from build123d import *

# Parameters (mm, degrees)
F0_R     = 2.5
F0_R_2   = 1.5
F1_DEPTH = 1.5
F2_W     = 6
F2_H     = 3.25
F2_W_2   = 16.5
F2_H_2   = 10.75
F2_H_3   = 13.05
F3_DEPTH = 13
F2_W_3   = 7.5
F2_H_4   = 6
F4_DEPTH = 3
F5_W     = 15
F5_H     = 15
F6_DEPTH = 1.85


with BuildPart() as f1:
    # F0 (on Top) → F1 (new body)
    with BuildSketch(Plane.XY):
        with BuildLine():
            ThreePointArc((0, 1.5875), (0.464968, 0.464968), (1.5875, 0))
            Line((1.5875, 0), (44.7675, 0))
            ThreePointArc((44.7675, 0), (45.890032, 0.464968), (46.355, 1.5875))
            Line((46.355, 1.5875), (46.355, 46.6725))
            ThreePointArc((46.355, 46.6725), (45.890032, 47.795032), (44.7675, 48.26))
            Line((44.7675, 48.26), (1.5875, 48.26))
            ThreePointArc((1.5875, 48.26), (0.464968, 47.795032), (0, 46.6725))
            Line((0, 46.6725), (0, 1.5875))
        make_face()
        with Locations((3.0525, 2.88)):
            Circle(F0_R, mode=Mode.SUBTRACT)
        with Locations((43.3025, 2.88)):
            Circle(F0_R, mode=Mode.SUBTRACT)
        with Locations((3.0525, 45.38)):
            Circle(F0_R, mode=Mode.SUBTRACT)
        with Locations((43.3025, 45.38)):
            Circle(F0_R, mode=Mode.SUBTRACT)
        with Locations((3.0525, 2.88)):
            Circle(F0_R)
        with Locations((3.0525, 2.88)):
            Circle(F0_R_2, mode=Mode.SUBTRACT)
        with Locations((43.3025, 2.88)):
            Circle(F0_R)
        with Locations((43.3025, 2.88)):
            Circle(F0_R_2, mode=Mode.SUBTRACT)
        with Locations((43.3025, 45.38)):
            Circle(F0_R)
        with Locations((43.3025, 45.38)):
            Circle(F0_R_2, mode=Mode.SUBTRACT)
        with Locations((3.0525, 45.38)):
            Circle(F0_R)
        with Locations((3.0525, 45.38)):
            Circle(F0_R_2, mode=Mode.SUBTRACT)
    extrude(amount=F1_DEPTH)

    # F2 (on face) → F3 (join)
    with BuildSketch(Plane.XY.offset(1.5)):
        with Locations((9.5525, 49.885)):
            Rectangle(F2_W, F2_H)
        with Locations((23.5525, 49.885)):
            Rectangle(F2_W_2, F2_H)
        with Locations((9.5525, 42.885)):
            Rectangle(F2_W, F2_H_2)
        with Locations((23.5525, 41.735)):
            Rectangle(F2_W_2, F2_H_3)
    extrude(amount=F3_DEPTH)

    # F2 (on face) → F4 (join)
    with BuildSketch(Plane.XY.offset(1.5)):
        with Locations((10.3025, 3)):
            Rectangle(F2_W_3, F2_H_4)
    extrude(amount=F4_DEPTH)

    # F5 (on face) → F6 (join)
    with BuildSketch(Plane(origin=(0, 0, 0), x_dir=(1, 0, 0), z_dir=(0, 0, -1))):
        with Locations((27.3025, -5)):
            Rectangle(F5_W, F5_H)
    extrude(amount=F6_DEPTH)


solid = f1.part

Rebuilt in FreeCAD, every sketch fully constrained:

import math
import FreeCAD as App
import Part
import Sketcher


def add_polygon(sketch, points):
    """Adds a closed chain of lines whose ends are joined by coincident constraints."""
    first, n = sketch.GeometryCount, len(points)
    for a, b in zip(points, points[1:] + points[:1]):
        sketch.addGeometry(Part.LineSegment(App.Vector(*a, 0), App.Vector(*b, 0)), False)
    for i in range(n):
        sketch.addConstraint(Sketcher.Constraint("Coincident", first + i, 2, first + (i + 1) % n, 1))

doc = App.newDocument("Part")
params = doc.addObject("Spreadsheet::Sheet", "Params")
for row, (alias, value) in enumerate([
    ("sketch1_diameter", "3 mm"),
    ("sketch1_width", "43.18 mm"),
    ("pad1_length", "1.5 mm"),
    ("sketch2_width", "6 mm"),
    ("sketch2_height", "14 mm"),
    ("sketch2_width2", "16.5 mm"),
    ("sketch2_height2", "16.3 mm"),
    ("pad2_length", "13 mm"),
    ("sketch3_height", "6 mm"),
    ("sketch3_width", "7.5 mm"),
    ("pad3_length", "3 mm"),
    ("sketch4_width", "15 mm"),
    ("pad4_length", "1.85 mm"),
], start=1):
    params.set(f"A{row}", alias)
    params.set(f"B{row}", "=" + value)
    params.setAlias(f"B{row}", alias)

body = doc.addObject("PartDesign::Body", "Body")

sketch1 = body.newObject("Sketcher::SketchObject", "Sketch")
sketch1.AttachmentSupport = (doc.getObject("XY_Plane"), [""])
sketch1.MapMode = "FlatFace"
sketch1.addGeometry(Part.ArcOfCircle(Part.Circle(App.Vector(1.5875, 1.5875, 0), App.Vector(0, 0, 1), 1.5875), math.radians(-179.999998), math.radians(-90.000002)), False)
sketch1.addGeometry(Part.LineSegment(App.Vector(1.5875, 0, 0), App.Vector(44.7675, 0, 0)), False)
sketch1.addGeometry(Part.ArcOfCircle(Part.Circle(App.Vector(44.7675, 1.5875, 0), App.Vector(0, 0, 1), 1.5875), math.radians(-89.999998), math.radians(-0.000002)), False)
sketch1.addGeometry(Part.LineSegment(App.Vector(46.355, 1.5875, 0), App.Vector(46.355, 46.6725, 0)), False)
sketch1.addGeometry(Part.ArcOfCircle(Part.Circle(App.Vector(44.7675, 46.6725, 0), App.Vector(0, 0, 1), 1.5875), math.radians(0.000002), math.radians(89.999998)), False)
sketch1.addGeometry(Part.LineSegment(App.Vector(44.7675, 48.26, 0), App.Vector(1.5875, 48.26, 0)), False)
sketch1.addGeometry(Part.ArcOfCircle(Part.Circle(App.Vector(1.5875, 46.6725, 0), App.Vector(0, 0, 1), 1.5875), math.radians(90.000002), math.radians(179.999998)), False)
sketch1.addGeometry(Part.LineSegment(App.Vector(0, 46.6725, 0), App.Vector(0, 1.5875, 0)), False)
sketch1.addGeometry(Part.Circle(App.Vector(3.0525, 2.88, 0), App.Vector(0, 0, 1), 1.5), False)
sketch1.addGeometry(Part.Circle(App.Vector(43.3025, 2.88, 0), App.Vector(0, 0, 1), 1.5), False)
sketch1.addGeometry(Part.Circle(App.Vector(3.0525, 45.38, 0), App.Vector(0, 0, 1), 1.5), False)
sketch1.addGeometry(Part.Circle(App.Vector(43.3025, 45.38, 0), App.Vector(0, 0, 1), 1.5), False)
sketch1.addConstraint(Sketcher.Constraint("Tangent", 0, 2, 1, 1))
sketch1.addConstraint(Sketcher.Constraint("Tangent", 1, 2, 2, 1))
sketch1.addConstraint(Sketcher.Constraint("Tangent", 2, 2, 3, 1))
sketch1.addConstraint(Sketcher.Constraint("Tangent", 3, 2, 4, 1))
sketch1.addConstraint(Sketcher.Constraint("Tangent", 4, 2, 5, 1))
sketch1.addConstraint(Sketcher.Constraint("Tangent", 5, 2, 6, 1))
sketch1.addConstraint(Sketcher.Constraint("Tangent", 6, 2, 7, 1))
sketch1.addConstraint(Sketcher.Constraint("Tangent", 7, 2, 0, 1))
sketch1.addConstraint(Sketcher.Constraint("Horizontal", 1))
sketch1.addConstraint(Sketcher.Constraint("Vertical", 3))
sketch1.addConstraint(Sketcher.Constraint("Horizontal", 5))
sketch1.addConstraint(Sketcher.Constraint("Vertical", 7))
sketch1.addConstraint(Sketcher.Constraint("Equal", 0, 2))
sketch1.addConstraint(Sketcher.Constraint("Equal", 2, 4))
sketch1.addConstraint(Sketcher.Constraint("Equal", 4, 6))
sketch1.addConstraint(Sketcher.Constraint("Equal", 8, 9))
sketch1.addConstraint(Sketcher.Constraint("Equal", 9, 10))
sketch1.addConstraint(Sketcher.Constraint("Equal", 10, 11))
sketch1.addConstraint(Sketcher.Constraint("PointOnObject", 0, 2, -1))
sketch1.addConstraint(Sketcher.Constraint("PointOnObject", 6, 2, -2))
sketch1.addConstraint(Sketcher.Constraint("Horizontal", 8, 3, 9, 3))
sketch1.addConstraint(Sketcher.Constraint("Horizontal", 10, 3, 11, 3))
sketch1.addConstraint(Sketcher.Constraint("Vertical", 8, 3, 10, 3))
sketch1.addConstraint(Sketcher.Constraint("Vertical", 9, 3, 11, 3))
sketch1.addConstraint(Sketcher.Constraint("Diameter", 8, 3.0))
sketch1.addConstraint(Sketcher.Constraint("DistanceX", 1, 1, 1, 2, 43.18))
sketch1.addConstraint(Sketcher.Constraint("Radius", 0, 1.5875))
sketch1.addConstraint(Sketcher.Constraint("DistanceY", 8, 3, 10, 3, 42.5))
sketch1.addConstraint(Sketcher.Constraint("DistanceY", 3, 1, 3, 2, 45.085))
sketch1.addConstraint(Sketcher.Constraint("DistanceY", -1, 1, 8, 3, 2.88))
sketch1.addConstraint(Sketcher.Constraint("DistanceX", 8, 3, 9, 3, 40.25))
sketch1.addConstraint(Sketcher.Constraint("DistanceX", 0, 3, 8, 3, 1.465))
sketch1.setExpression("Constraints[24]", "Params.sketch1_diameter")
sketch1.setExpression("Constraints[25]", "Params.sketch1_width")
pad1 = body.newObject("PartDesign::Pad", "Pad")
pad1.Profile = sketch1
pad1.setExpression("Length", "Params.pad1_length")

sketch2 = body.newObject("Sketcher::SketchObject", "Sketch001")
sketch2.AttachmentSupport = (doc.getObject("XY_Plane"), [""])
sketch2.MapMode = "FlatFace"
sketch2.AttachmentOffset = App.Placement(App.Vector(0, 0, 1.5), App.Rotation())
add_polygon(sketch2, [(6.5525, 51.51), (6.5525, 37.51), (12.5525, 37.51), (12.5525, 51.51)])
add_polygon(sketch2, [(15.3025, 51.51), (15.3025, 35.21), (31.8025, 35.21), (31.8025, 51.51)])
sketch2.addConstraint(Sketcher.Constraint("Vertical", 0))
sketch2.addConstraint(Sketcher.Constraint("Horizontal", 1))
sketch2.addConstraint(Sketcher.Constraint("Vertical", 2))
sketch2.addConstraint(Sketcher.Constraint("Horizontal", 3))
sketch2.addConstraint(Sketcher.Constraint("Vertical", 4))
sketch2.addConstraint(Sketcher.Constraint("Horizontal", 5))
sketch2.addConstraint(Sketcher.Constraint("Vertical", 6))
sketch2.addConstraint(Sketcher.Constraint("Horizontal", 7))
sketch2.addConstraint(Sketcher.Constraint("Horizontal", 3, 2, 6, 2))
sketch2.addConstraint(Sketcher.Constraint("DistanceX", 1, 1, 1, 2, 6.0))
sketch2.addConstraint(Sketcher.Constraint("DistanceY", 0, 2, 0, 1, 14.0))
sketch2.addConstraint(Sketcher.Constraint("DistanceX", 5, 1, 5, 2, 16.5))
sketch2.addConstraint(Sketcher.Constraint("DistanceY", 4, 2, 4, 1, 16.3))
sketch2.addConstraint(Sketcher.Constraint("DistanceY", -1, 1, 0, 2, 37.51))
sketch2.addConstraint(Sketcher.Constraint("DistanceX", 1, 2, 4, 2, 2.75))
sketch2.addConstraint(Sketcher.Constraint("DistanceX", -1, 1, 0, 2, 6.5525))
sketch2.setExpression("Constraints[17]", "Params.sketch2_width")
sketch2.setExpression("Constraints[18]", "Params.sketch2_height")
sketch2.setExpression("Constraints[19]", "Params.sketch2_width2")
sketch2.setExpression("Constraints[20]", "Params.sketch2_height2")
pad2 = body.newObject("PartDesign::Pad", "Pad001")
pad2.Profile = sketch2
pad2.setExpression("Length", "Params.pad2_length")

sketch3 = body.newObject("Sketcher::SketchObject", "Sketch002")
sketch3.AttachmentSupport = (doc.getObject("XY_Plane"), [""])
sketch3.MapMode = "FlatFace"
sketch3.AttachmentOffset = App.Placement(App.Vector(0, 0, 1.5), App.Rotation())
add_polygon(sketch3, [(6.5525, 6), (6.5525, 0), (14.0525, 0), (14.0525, 6)])
sketch3.addConstraint(Sketcher.Constraint("Vertical", 0))
sketch3.addConstraint(Sketcher.Constraint("Horizontal", 1))
sketch3.addConstraint(Sketcher.Constraint("Vertical", 2))
sketch3.addConstraint(Sketcher.Constraint("Horizontal", 3))
sketch3.addConstraint(Sketcher.Constraint("PointOnObject", 0, 2, -1))
sketch3.addConstraint(Sketcher.Constraint("DistanceY", 0, 2, 0, 1, 6.0))
sketch3.addConstraint(Sketcher.Constraint("DistanceX", 1, 1, 1, 2, 7.5))
sketch3.addConstraint(Sketcher.Constraint("DistanceX", -1, 1, 0, 2, 6.5525))
sketch3.setExpression("Constraints[9]", "Params.sketch3_height")
sketch3.setExpression("Constraints[10]", "Params.sketch3_width")
pad3 = body.newObject("PartDesign::Pad", "Pad002")
pad3.Profile = sketch3
pad3.setExpression("Length", "Params.pad3_length")

sketch4 = body.newObject("Sketcher::SketchObject", "Sketch003")
sketch4.AttachmentSupport = (doc.getObject("XY_Plane"), [""])
sketch4.MapMode = "FlatFace"
add_polygon(sketch4, [(19.8025, -2.5), (19.8025, 12.5), (34.8025, 12.5), (34.8025, -2.5)])
sketch4.addConstraint(Sketcher.Constraint("Vertical", 0))
sketch4.addConstraint(Sketcher.Constraint("Horizontal", 1))
sketch4.addConstraint(Sketcher.Constraint("Vertical", 2))
sketch4.addConstraint(Sketcher.Constraint("Horizontal", 3))
sketch4.addConstraint(Sketcher.Constraint("Equal", 3, 0))
sketch4.addConstraint(Sketcher.Constraint("DistanceX", 1, 1, 1, 2, 15.0))
sketch4.addConstraint(Sketcher.Constraint("DistanceY", -1, 1, 0, 2, 12.5))
sketch4.addConstraint(Sketcher.Constraint("DistanceX", -1, 1, 0, 2, 19.8025))
sketch4.setExpression("Constraints[9]", "Params.sketch4_width")
pad4 = body.newObject("PartDesign::Pad", "Pad003")
pad4.Profile = sketch4
pad4.setExpression("Length", "Params.pad4_length")
pad4.Reversed = True

doc.recompute()
